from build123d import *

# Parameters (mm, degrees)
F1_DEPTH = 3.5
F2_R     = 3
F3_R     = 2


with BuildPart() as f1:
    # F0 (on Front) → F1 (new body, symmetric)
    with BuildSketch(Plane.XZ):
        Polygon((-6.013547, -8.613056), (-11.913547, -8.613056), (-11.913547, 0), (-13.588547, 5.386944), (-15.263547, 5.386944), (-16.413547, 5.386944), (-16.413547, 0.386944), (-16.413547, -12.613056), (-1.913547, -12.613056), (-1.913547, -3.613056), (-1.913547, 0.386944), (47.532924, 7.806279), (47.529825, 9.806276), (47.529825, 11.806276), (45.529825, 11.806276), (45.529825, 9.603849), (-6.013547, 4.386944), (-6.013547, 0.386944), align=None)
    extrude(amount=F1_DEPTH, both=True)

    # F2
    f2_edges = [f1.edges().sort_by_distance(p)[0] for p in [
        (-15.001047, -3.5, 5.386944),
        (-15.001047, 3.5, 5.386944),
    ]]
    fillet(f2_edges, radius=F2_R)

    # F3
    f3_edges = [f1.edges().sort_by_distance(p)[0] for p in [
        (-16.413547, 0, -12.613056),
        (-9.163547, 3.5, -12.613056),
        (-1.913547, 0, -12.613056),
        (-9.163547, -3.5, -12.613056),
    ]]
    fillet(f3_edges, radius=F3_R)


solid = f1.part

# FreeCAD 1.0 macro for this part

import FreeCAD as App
import Part
import Sketcher
from FreeCAD import Vector


def edges_at(feature, points):
    """Names of the edges that pass closest to the given points."""
    edges = feature.Shape.Edges
    near = lambda p: min(range(len(edges)), key=lambda i: edges[i].distToShape(Part.Vertex(*p))[0])
    return sorted({f"Edge{near(p) + 1}" for p in points})


def add_polygon(sketch, points):
    """Adds a closed chain of lines whose ends are joined by coincident constraints."""
    first, n = sketch.GeometryCount, len(points)
    for a, b in zip(points, points[1:] + points[:1]):
        sketch.addGeometry(Part.LineSegment(App.Vector(*a, 0), App.Vector(*b, 0)), False)
    for i in range(n):
        sketch.addConstraint(Sketcher.Constraint("Coincident", first + i, 2, first + (i + 1) % n, 1))

doc = App.newDocument("Part")
body = doc.addObject("PartDesign::Body", "Body")

sketch1 = body.newObject("Sketcher::SketchObject", "Sketch")
sketch1.AttachmentSupport = (doc.getObject("XZ_Plane"), [""])
sketch1.MapMode = "FlatFace"
add_polygon(sketch1, [(-6, -8.6), (-11.9, -8.6), (-11.9, 0), (-13.6, 5.4), (-16.4, 5.4), (-16.4, -12.6), (-1.9, -12.6), (-1.9, 0.4), (47.5, 7.8), (47.5, 9.8), (47.5, 11.8), (45.5, 11.8), (45.5, 9.6), (-6, 4.4)])
sketch1.addConstraint([
    Sketcher.Constraint("Horizontal", 0),
    Sketcher.Constraint("Vertical", 1),
    Sketcher.Constraint("Horizontal", 3),
    Sketcher.Constraint("Vertical", 4),
    Sketcher.Constraint("Horizontal", 5),
    Sketcher.Constraint("Vertical", 6),
    Sketcher.Constraint("Vertical", 9),
    Sketcher.Constraint("Horizontal", 10),
    Sketcher.Constraint("Vertical", 11),
    Sketcher.Constraint("Vertical", 13),
    Sketcher.Constraint("PointOnObject", 1, 2, -1),
    Sketcher.Constraint("Equal", 10, 9),
    Sketcher.Constraint("Equal", 6, 13),
    Sketcher.Constraint("DistanceX", 10, 2, 10, 1, 2.0),
    Sketcher.Constraint("DistanceY", 4, 2, 4, 1, 18.0),
    Sketcher.Constraint("DistanceY", 6, 1, 6, 2, 13.0),
    Sketcher.Constraint("Distance", 7, 50.0),
    Sketcher.Constraint("Distance", 8, 1.999999),
    Sketcher.Constraint("DistanceX", 0, 2, 0, 1, 5.9),
    Sketcher.Constraint("DistanceX", 5, 1, 5, 2, 14.5),
    Sketcher.Constraint("DistanceY", 0, 2, 2, 2, 14.0),
    Sketcher.Constraint("DistanceX", 0, 2, 5, 2, 10.0),
    Sketcher.Constraint("DistanceX", 3, 2, 3, 1, 2.825),
    Sketcher.Constraint("DistanceX", 8, 2, 7, 2, 0.003099),
    Sketcher.Constraint("Distance", 12, 51.806711),
    Sketcher.Constraint("DistanceY", 1, 1, 1, 2, 8.613056),
    Sketcher.Constraint("DistanceY", 11, 2, 11, 1, 2.202427),
    Sketcher.Constraint("DistanceX", 0, 2, -1, 1, 11.913547),
])
pad1 = body.newObject("PartDesign::Pad", "Pad")
pad1.Profile = sketch1
pad1.Length = 7
pad1.Midplane = True
doc.recompute()

fillet = body.newObject("PartDesign::Fillet", "Fillet")
fillet.Base = (pad1, edges_at(pad1, [(-15.001, -3.5, 5.387), (-15.001, 3.5, 5.387)]))
fillet.Radius = 3
doc.recompute()

fillet2 = body.newObject("PartDesign::Fillet", "Fillet001")
fillet2.Base = (fillet, edges_at(fillet, [
    (-16.414, 0, -12.613),
    (-9.164, 3.5, -12.613),
    (-1.914, 0, -12.613),
    (-9.164, -3.5, -12.613),
]))
fillet2.Radius = 2

doc.recompute()
